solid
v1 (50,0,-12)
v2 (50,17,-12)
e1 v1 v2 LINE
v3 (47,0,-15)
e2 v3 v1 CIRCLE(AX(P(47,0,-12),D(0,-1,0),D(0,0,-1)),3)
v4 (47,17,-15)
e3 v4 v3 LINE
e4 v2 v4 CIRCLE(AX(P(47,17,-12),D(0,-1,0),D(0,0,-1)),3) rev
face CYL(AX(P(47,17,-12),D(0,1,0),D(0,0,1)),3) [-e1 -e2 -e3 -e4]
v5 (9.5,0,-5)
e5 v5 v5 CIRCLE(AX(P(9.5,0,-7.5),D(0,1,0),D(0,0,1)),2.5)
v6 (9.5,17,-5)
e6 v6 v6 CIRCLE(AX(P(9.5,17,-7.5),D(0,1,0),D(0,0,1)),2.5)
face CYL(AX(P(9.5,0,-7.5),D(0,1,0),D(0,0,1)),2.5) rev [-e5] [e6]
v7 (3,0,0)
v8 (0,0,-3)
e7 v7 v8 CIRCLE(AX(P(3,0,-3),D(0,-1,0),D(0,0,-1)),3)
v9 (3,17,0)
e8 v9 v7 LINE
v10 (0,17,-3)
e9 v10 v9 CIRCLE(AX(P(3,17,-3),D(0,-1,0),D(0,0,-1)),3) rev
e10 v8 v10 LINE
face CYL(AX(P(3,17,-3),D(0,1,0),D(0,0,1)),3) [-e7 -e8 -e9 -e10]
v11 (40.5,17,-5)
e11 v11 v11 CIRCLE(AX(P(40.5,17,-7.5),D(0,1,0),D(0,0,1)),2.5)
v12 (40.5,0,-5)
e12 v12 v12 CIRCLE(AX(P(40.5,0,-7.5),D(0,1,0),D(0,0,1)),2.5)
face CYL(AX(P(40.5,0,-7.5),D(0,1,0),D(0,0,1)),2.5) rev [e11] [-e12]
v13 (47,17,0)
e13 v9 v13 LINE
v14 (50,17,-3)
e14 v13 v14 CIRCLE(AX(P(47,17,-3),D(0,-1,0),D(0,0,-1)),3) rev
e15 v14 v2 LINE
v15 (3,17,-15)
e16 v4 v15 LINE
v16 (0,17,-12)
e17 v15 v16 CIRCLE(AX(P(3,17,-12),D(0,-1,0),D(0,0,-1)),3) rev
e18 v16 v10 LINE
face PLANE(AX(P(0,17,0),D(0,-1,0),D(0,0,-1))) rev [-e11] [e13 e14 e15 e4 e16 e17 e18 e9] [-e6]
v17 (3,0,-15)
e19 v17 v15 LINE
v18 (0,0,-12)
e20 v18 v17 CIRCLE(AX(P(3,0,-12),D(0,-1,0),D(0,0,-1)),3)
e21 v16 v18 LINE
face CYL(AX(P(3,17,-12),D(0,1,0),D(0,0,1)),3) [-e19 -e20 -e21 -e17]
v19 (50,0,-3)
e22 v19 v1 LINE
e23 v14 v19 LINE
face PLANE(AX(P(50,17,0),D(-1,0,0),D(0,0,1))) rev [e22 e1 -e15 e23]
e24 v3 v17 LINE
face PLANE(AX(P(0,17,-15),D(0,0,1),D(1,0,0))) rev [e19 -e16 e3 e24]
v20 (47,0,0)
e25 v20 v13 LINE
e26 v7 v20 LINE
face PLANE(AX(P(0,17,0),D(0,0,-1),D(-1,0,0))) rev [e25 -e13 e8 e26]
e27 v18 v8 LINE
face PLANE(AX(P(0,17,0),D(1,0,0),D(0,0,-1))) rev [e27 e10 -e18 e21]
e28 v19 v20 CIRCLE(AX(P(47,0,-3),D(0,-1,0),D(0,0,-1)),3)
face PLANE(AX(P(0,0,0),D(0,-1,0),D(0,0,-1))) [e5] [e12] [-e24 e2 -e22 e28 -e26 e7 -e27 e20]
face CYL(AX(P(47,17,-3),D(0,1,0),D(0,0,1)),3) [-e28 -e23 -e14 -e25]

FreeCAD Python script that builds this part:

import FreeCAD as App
import Part
import Sketcher

V = App.Vector
Q = App.Units.Quantity


def edges_at(feature, points):
    """Names of the edges that pass closest to the given points."""
    edges = feature.Shape.Edges
    near = lambda p: min(range(len(edges)), key=lambda i: edges[i].distToShape(Part.Vertex(*p))[0])
    return sorted({f"Edge{near(p) + 1}" for p in points})


def add_polygon(sketch, points):
    """Adds a closed chain of lines whose ends are joined by coincident constraints."""
    first, n = sketch.GeometryCount, len(points)
    for a, b in zip(points, points[1:] + points[:1]):
        sketch.addGeometry(Part.LineSegment(App.Vector(*a, 0), App.Vector(*b, 0)), False)
    for i in range(n):
        sketch.addConstraint(Sketcher.Constraint("Coincident", first + i, 2, first + (i + 1) % n, 1))

doc = App.newDocument("Part")
body = doc.addObject("PartDesign::Body", "Body")

sketch1 = body.newObject("Sketcher::SketchObject", "Sketch")
sketch1.AttachmentSupport = (doc.getObject("XZ_Plane"), [""])
sketch1.MapMode = "FlatFace"
add_polygon(sketch1, [(0, -15), (0, 0), (50, 0), (50, -15)])
sketch1.addConstraint([
    Sketcher.Constraint("Vertical", 0),
    Sketcher.Constraint("Horizontal", 1),
    Sketcher.Constraint("Vertical", 2),
    Sketcher.Constraint("Horizontal", 3),
    Sketcher.Constraint("Coincident", 0, 2, -1, 1),
    Sketcher.Constraint("DistanceX", 1, 1, 1, 2, Q("50 mm")),
    Sketcher.Constraint("DistanceY", 0, 1, 0, 2, Q("15 mm")),
])
pad1 = body.newObject("PartDesign::Pad", "Pad")
pad1.Profile = sketch1
pad1.Length = 17
pad1.Reversed = True
doc.recompute()

fillet = body.newObject("PartDesign::Fillet", "Fillet")
fillet.Base = (pad1, edges_at(pad1, [(50, 8.5, 0)]))
fillet.Radius = 3
doc.recompute()

fillet2 = body.newObject("PartDesign::Fillet", "Fillet001")
fillet2.Base = (fillet, edges_at(fillet, [(50, 8.5, -15)]))
fillet2.Radius = 3
doc.recompute()

fillet3 = body.newObject("PartDesign::Fillet", "Fillet002")
fillet3.Base = (fillet2, edges_at(fillet2, [(0, 8.5, -15)]))
fillet3.Radius = 3
doc.recompute()

fillet4 = body.newObject("PartDesign::Fillet", "Fillet003")
fillet4.Base = (fillet3, edges_at(fillet3, [(0, 8.5, 0)]))
fillet4.Radius = 3

sketch2 = body.newObject("Sketcher::SketchObject", "Sketch001")
sketch2.AttachmentSupport = (doc.getObject("XZ_Plane"), [""])
sketch2.MapMode = "FlatFace"
sketch2.AttachmentOffset = App.Placement(V(0, 0, -17), App.Rotation())
sketch2.addGeometry([
    Part.Circle(V(40.5, -7.5, 0), V(0, 0, 1), 2.5),
    Part.Circle(V(9.5, -7.5, 0), V(0, 0, 1), 2.5),
], False)
sketch2.addConstraint([
    Sketcher.Constraint("Equal", 0, 1),
    Sketcher.Constraint("Horizontal", 0, 3, 1, 3),
    Sketcher.Constraint("Diameter", 0, Q("5 mm")),
    Sketcher.Constraint("DistanceX", 1, 3, 0, 3, Q("31 mm")),
    Sketcher.Constraint("DistanceX", -1, 1, 0, 3, Q("40.5 mm")),
    Sketcher.Constraint("DistanceY", 0, 3, -1, 1, Q("7.5 mm")),
])
pocket1 = body.newObject("PartDesign::Pocket", "Pocket")
pocket1.Profile = sketch2
pocket1.Length = 17
pocket1.Reversed = True

doc.recompute()
